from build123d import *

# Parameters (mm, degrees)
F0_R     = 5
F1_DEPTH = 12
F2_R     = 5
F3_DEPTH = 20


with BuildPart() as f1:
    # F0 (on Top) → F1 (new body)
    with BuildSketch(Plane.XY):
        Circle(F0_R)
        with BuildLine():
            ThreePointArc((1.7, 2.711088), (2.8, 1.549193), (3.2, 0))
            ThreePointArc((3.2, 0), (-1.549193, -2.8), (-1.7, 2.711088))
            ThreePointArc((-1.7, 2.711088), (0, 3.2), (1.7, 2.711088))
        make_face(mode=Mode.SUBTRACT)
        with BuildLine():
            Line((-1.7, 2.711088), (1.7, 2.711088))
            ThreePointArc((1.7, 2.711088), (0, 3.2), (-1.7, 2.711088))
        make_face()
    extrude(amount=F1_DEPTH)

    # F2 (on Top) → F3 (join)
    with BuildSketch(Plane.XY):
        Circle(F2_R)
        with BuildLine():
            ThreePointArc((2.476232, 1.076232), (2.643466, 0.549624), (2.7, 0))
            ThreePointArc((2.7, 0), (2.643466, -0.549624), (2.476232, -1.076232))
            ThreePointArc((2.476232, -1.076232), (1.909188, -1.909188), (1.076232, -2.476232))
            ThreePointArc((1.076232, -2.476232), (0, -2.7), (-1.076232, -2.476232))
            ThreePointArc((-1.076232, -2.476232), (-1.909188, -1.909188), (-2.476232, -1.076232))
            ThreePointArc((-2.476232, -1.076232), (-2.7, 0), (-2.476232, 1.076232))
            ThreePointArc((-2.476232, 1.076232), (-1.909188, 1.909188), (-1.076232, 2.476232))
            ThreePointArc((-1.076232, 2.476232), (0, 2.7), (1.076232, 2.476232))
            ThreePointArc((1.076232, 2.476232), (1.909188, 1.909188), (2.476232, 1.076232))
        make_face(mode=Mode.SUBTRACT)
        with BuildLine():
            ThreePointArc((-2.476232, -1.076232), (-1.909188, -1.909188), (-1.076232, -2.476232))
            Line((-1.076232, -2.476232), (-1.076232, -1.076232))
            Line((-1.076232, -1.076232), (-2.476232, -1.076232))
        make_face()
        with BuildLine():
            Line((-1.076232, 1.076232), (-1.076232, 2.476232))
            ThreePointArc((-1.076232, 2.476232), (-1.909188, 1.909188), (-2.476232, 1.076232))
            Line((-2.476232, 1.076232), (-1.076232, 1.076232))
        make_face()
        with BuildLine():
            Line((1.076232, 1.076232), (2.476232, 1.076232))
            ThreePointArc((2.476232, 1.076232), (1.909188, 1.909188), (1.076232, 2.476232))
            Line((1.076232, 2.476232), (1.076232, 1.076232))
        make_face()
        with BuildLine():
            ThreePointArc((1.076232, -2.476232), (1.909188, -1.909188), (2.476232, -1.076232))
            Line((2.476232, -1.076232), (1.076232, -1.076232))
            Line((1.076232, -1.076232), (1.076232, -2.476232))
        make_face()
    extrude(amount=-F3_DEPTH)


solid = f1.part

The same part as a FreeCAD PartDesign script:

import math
import FreeCAD as App
import Part
import Sketcher

V = App.Vector

doc = App.newDocument("Part")
body = doc.addObject("PartDesign::Body", "Body")

sketch1 = body.newObject("Sketcher::SketchObject", "Sketch")
sketch1.AttachmentSupport = (doc.getObject("XY_Plane"), [""])
sketch1.MapMode = "FlatFace"
sketch1.addGeometry([
    Part.Circle(V(0, 0, 0), V(0, 0, 1), 5),
    Part.ArcOfCircle(Part.Circle(V(0, 0, 0), V(0, 0, 1), 3.2), math.radians(122.089956), math.radians(360.000001)),
    Part.LineSegment(V(-1.7, 2.711088, 0), V(1.7, 2.711088, 0)),
    Part.ArcOfCircle(Part.Circle(V(0, 0, 0), V(0, 0, 1), 3.2), math.radians(0.000006), math.radians(57.910049)),
], False)
sketch1.addConstraint([
    Sketcher.Constraint("Coincident", 1, 1, 2, 1),
    Sketcher.Constraint("Coincident", 2, 2, 3, 2),
    Sketcher.Constraint("Tangent", 3, 1, 1, 2),
    Sketcher.Constraint("Horizontal", 2),
    Sketcher.Constraint("Coincident", 0, 3, -1, 1),
    Sketcher.Constraint("Coincident", 1, 3, -1, 1),
    Sketcher.Constraint("Equal", 1, 3),
    Sketcher.Constraint("PointOnObject", 3, 1, -1),
    Sketcher.Constraint("Diameter", 0, 10.0),
    Sketcher.Constraint("Radius", 1, 3.2),
    Sketcher.Constraint("DistanceX", 2, 1, 2, 2, 3.4),
])
pad1 = body.newObject("PartDesign::Pad", "Pad")
pad1.Profile = sketch1
pad1.Length = 12

sketch2 = body.newObject("Sketcher::SketchObject", "Sketch001")
sketch2.AttachmentSupport = (doc.getObject("XY_Plane"), [""])
sketch2.MapMode = "FlatFace"
sketch2.addGeometry([
    Part.Circle(V(0, 0, 0), V(0, 0, 1), 5),
    Part.ArcOfCircle(Part.Circle(V(-0.000009, -0.000002, 0), V(0, 0, 1), 2.700009), math.radians(0.000039), math.radians(23.49092)),
    Part.ArcOfCircle(Part.Circle(V(-0.000009, 0.000002, 0), V(0, 0, 1), 2.700009), math.radians(-23.49092), math.radians(-0.000039)),
    Part.LineSegment(V(2.476232, -1.076232, 0), V(1.076232, -1.076232, 0)),
    Part.LineSegment(V(1.076232, -1.076232, 0), V(1.076232, -2.476232, 0)),
    Part.ArcOfCircle(Part.Circle(V(0, 0.000001, 0), V(0, 0, 1), 2.700001), math.radians(-113.49096), math.radians(-66.50904)),
    Part.LineSegment(V(-1.076232, -2.476232, 0), V(-1.076232, -1.076232, 0)),
    Part.LineSegment(V(-1.076232, -1.076232, 0), V(-2.476232, -1.076232, 0)),
    Part.ArcOfCircle(Part.Circle(V(0.000001, 0, 0), V(0, 0, 1), 2.700001), math.radians(156.50904), math.radians(203.49096)),
    Part.LineSegment(V(-2.476232, 1.076232, 0), V(-1.076232, 1.076232, 0)),
    Part.LineSegment(V(-1.076232, 1.076232, 0), V(-1.076232, 2.476232, 0)),
    Part.ArcOfCircle(Part.Circle(V(0, -0.000001, 0), V(0, 0, 1), 2.700001), math.radians(66.50904), math.radians(113.49096)),
    Part.LineSegment(V(1.076232, 2.476232, 0), V(1.076232, 1.076232, 0)),
    Part.LineSegment(V(1.076232, 1.076232, 0), V(2.476232, 1.076232, 0)),
], False)
sketch2.addConstraint([
    Sketcher.Constraint("Tangent", 1, 1, 2, 2),
    Sketcher.Constraint("Coincident", 2, 1, 3, 1),
    Sketcher.Constraint("Coincident", 3, 2, 4, 1),
    Sketcher.Constraint("Coincident", 4, 2, 5, 2),
    Sketcher.Constraint("Coincident", 5, 1, 6, 1),
    Sketcher.Constraint("Coincident", 6, 2, 7, 1),
    Sketcher.Constraint("Coincident", 7, 2, 8, 2),
    Sketcher.Constraint("Coincident", 8, 1, 9, 1),
    Sketcher.Constraint("Coincident", 9, 2, 10, 1),
    Sketcher.Constraint("Coincident", 10, 2, 11, 2),
    Sketcher.Constraint("Coincident", 11, 1, 12, 1),
    Sketcher.Constraint("Coincident", 12, 2, 13, 1),
    Sketcher.Constraint("Coincident", 13, 2, 1, 2),
    Sketcher.Constraint("Horizontal", 3),
    Sketcher.Constraint("Vertical", 4),
    Sketcher.Constraint("Vertical", 6),
    Sketcher.Constraint("Horizontal", 7),
    Sketcher.Constraint("Horizontal", 9),
    Sketcher.Constraint("Vertical", 10),
    Sketcher.Constraint("Vertical", 12),
    Sketcher.Constraint("Horizontal", 13),
    Sketcher.Constraint("Coincident", 0, 3, -1, 1),
    Sketcher.Constraint("Coincident", 1, 3, -1, 1),
    Sketcher.Constraint("Coincident", 5, 3, -1, 1),
    Sketcher.Constraint("Coincident", 8, 3, -1, 1),
    Sketcher.Constraint("Coincident", 11, 3, -1, 1),
    Sketcher.Constraint("Equal", 1, 2),
    Sketcher.Constraint("Equal", 5, 8),
    Sketcher.Constraint("Equal", 8, 11),
    Sketcher.Constraint("Symmetric", 2, 1, 8, 1, -1, 1),
    Sketcher.Constraint("Symmetric", 6, 2, 12, 2, -1, 1),
    Sketcher.Constraint("Symmetric", 3, 2, 6, 2, -2),
    Sketcher.Constraint("PointOnObject", 1, 1, -1),
    Sketcher.Constraint("Horizontal", 10, 2, 11, 1),
    Sketcher.Constraint("Equal", 13, 4),
    Sketcher.Constraint("Diameter", 0, 10.0),
    Sketcher.Constraint("Radius", 5, 2.700001),
    Sketcher.Constraint("DistanceX", 3, 2, 3, 1, 1.4),
])
pad2 = body.newObject("PartDesign::Pad", "Pad001")
pad2.Profile = sketch2
pad2.Length = 20
pad2.Reversed = True

doc.recompute()
